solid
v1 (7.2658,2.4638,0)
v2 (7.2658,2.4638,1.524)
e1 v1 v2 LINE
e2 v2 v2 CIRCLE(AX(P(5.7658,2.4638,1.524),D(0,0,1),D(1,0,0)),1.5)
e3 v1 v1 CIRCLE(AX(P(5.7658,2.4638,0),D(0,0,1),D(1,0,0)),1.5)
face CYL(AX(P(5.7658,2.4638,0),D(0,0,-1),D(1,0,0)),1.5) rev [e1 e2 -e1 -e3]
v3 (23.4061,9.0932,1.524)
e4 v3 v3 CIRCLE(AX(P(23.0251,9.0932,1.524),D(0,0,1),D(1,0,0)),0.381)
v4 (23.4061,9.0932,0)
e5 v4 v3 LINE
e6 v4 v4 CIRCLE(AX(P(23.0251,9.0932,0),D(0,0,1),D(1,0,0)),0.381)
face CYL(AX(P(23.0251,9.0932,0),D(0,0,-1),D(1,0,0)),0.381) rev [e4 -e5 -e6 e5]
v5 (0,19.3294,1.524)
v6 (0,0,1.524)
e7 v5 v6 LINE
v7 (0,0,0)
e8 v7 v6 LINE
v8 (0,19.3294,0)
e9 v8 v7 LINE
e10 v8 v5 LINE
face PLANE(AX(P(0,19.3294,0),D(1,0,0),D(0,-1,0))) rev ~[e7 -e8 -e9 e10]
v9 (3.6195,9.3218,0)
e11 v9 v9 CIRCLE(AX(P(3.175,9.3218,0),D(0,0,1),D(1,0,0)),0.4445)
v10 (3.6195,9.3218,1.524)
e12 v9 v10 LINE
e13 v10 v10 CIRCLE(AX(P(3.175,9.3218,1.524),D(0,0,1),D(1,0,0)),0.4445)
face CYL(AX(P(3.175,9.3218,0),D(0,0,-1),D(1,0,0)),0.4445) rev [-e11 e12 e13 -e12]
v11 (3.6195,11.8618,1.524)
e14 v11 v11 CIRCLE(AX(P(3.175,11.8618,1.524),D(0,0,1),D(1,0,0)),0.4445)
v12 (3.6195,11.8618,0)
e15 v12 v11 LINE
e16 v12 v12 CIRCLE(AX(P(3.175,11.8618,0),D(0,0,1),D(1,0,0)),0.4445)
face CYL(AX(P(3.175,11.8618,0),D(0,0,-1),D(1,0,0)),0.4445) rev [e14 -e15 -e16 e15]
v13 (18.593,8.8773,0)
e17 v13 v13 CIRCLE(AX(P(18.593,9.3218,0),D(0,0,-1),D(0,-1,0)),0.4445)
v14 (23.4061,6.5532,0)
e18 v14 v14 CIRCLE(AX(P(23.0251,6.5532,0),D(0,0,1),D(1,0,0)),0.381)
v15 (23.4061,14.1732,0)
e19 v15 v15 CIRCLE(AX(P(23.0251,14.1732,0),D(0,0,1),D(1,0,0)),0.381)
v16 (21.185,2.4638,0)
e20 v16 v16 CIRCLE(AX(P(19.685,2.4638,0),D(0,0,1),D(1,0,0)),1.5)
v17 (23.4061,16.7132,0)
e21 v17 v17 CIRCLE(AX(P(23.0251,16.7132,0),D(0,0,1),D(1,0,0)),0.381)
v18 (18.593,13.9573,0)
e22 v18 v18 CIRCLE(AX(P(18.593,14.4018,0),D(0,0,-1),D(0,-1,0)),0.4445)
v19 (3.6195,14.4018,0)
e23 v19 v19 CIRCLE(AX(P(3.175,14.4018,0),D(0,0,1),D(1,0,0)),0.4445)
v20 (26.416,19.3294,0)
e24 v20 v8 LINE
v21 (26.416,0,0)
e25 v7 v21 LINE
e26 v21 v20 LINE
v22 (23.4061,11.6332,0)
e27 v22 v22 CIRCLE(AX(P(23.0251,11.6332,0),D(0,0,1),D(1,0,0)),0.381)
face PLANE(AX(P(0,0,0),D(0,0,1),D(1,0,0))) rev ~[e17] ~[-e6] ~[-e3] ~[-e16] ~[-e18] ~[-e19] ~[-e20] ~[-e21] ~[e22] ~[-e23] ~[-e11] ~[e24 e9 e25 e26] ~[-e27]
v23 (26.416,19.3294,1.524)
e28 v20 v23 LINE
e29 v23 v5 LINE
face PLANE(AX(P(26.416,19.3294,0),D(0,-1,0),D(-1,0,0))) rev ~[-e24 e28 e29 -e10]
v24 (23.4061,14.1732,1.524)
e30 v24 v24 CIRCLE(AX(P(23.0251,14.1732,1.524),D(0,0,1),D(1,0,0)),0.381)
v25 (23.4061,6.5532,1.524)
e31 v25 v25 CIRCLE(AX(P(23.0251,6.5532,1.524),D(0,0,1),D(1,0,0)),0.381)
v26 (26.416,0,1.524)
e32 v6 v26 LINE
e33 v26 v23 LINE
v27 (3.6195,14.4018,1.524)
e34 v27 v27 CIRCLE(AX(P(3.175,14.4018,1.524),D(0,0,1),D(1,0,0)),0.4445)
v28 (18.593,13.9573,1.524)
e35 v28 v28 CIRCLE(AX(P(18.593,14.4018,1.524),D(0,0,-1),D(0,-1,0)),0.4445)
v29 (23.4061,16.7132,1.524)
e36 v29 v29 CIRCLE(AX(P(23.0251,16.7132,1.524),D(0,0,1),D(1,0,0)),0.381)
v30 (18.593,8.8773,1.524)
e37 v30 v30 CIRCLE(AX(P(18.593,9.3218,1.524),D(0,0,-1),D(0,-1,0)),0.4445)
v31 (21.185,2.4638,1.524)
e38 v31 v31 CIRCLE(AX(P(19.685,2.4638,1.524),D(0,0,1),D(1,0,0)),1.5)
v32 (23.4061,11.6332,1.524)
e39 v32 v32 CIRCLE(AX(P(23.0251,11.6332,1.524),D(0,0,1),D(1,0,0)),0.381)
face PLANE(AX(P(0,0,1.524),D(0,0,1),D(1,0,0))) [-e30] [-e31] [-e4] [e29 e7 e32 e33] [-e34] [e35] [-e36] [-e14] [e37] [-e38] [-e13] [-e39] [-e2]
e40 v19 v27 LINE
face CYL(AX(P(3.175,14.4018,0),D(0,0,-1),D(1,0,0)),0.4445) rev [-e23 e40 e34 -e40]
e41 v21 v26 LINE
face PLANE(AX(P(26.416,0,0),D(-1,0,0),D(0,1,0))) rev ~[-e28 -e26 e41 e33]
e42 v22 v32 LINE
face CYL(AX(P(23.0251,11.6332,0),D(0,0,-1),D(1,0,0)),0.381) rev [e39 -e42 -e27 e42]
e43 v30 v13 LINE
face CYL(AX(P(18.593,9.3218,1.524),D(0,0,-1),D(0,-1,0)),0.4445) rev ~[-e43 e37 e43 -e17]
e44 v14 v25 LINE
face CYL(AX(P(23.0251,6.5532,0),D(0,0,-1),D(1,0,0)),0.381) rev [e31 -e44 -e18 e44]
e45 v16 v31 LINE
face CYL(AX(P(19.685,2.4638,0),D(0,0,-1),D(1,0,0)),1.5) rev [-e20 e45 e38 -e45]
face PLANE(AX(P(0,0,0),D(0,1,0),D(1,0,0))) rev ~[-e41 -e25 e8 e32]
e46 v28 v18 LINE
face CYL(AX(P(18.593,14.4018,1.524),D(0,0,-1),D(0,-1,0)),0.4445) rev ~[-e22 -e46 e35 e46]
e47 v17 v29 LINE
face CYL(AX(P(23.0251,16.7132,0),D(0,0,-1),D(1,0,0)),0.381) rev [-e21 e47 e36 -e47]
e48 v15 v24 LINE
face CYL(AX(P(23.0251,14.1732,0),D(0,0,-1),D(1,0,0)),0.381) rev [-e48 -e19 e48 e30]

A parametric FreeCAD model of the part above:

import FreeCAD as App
import Part
import Sketcher
Q = App.Units.Quantity


def add_polygon(sketch, points):
    """Adds a closed chain of lines whose ends are joined by coincident constraints."""
    first, n = sketch.GeometryCount, len(points)
    for a, b in zip(points, points[1:] + points[:1]):
        sketch.addGeometry(Part.LineSegment(App.Vector(*a, 0), App.Vector(*b, 0)), False)
    for i in range(n):
        sketch.addConstraint(Sketcher.Constraint("Coincident", first + i, 2, first + (i + 1) % n, 1))

doc = App.newDocument("Part")
params = doc.addObject("Spreadsheet::Sheet", "Params")
for row, (alias, value) in enumerate([
    ("sketch1_diameter", "0.03 in"),
    ("sketch1_diameter2", "0.035 in"),
    ("sketch1_width", "1.04 in"),
    ("sketch1_height", "0.761 in"),
    ("pad1_length", "0.06 in"),
    ("sketch2_diameter", "0.035 in"),
    ("hole_diameter", "0.035 in"),
], start=1):
    params.set(f"A{row}", alias)
    params.set(f"B{row}", "=" + value)
    params.setAlias(f"B{row}", alias)

body = doc.addObject("PartDesign::Body", "Body")

# Sketch on XY plane
sketch1 = body.newObject("Sketcher::SketchObject", "Sketch")
sketch1.AttachmentSupport = (doc.getObject("XY_Plane"), [""])
sketch1.MapMode = "FlatFace"
add_polygon(sketch1, [(0, 19.3294), (0, 0), (26.416, 0), (26.416, 19.3294)])  # lines 0-3
sketch1.addGeometry(Part.Circle(App.Vector(5.7658, 2.4638, 0), App.Vector(0, 0, 1), 1.5), False)  # 4
sketch1.addGeometry(Part.Circle(App.Vector(3.175, 9.3218, 0), App.Vector(0, 0, 1), 0.4445), False)  # 5
sketch1.addGeometry(Part.Circle(App.Vector(19.685, 2.4638, 0), App.Vector(0, 0, 1), 1.5), False)  # 6
sketch1.addGeometry(Part.Circle(App.Vector(3.175, 11.8618, 0), App.Vector(0, 0, 1), 0.4445), False)  # 7
sketch1.addGeometry(Part.Circle(App.Vector(3.175, 14.4018, 0), App.Vector(0, 0, 1), 0.4445), False)  # 8
sketch1.addGeometry(Part.Circle(App.Vector(23.0251, 9.0932, 0), App.Vector(0, 0, 1), 0.381), False)  # 9
sketch1.addGeometry(Part.Circle(App.Vector(23.0251, 11.6332, 0), App.Vector(0, 0, 1), 0.381), False)  # 10
sketch1.addGeometry(Part.Circle(App.Vector(23.0251, 14.1732, 0), App.Vector(0, 0, 1), 0.381), False)  # 11
sketch1.addGeometry(Part.Circle(App.Vector(23.0251, 16.7132, 0), App.Vector(0, 0, 1), 0.381), False)  # 12
sketch1.addGeometry(Part.Circle(App.Vector(23.0251, 6.5532, 0), App.Vector(0, 0, 1), 0.381), False)  # 13
sketch1.addConstraint([
    Sketcher.Constraint("Vertical", 0),
    Sketcher.Constraint("Horizontal", 1),
    Sketcher.Constraint("Vertical", 2),
    Sketcher.Constraint("Horizontal", 3),
    Sketcher.Constraint("Coincident", 0, 2, -1, 1),
    Sketcher.Constraint("Equal", 4, 6),
    Sketcher.Constraint("Equal", 5, 7),
    Sketcher.Constraint("Equal", 7, 8),
    Sketcher.Constraint("Equal", 9, 10),
    Sketcher.Constraint("Equal", 10, 11),
    Sketcher.Constraint("Equal", 11, 12),
    Sketcher.Constraint("Equal", 12, 13),
    Sketcher.Constraint("Horizontal", 4, 3, 6, 3),
    Sketcher.Constraint("Vertical", 5, 3, 7, 3),
    Sketcher.Constraint("Vertical", 7, 3, 8, 3),
    Sketcher.Constraint("Vertical", 9, 3, 10, 3),
    Sketcher.Constraint("Vertical", 10, 3, 11, 3),
    Sketcher.Constraint("Vertical", 11, 3, 12, 3),
    Sketcher.Constraint("Vertical", 12, 3, 13, 3),
    Sketcher.Constraint("Diameter", 9, Q("0.03 in")),
    Sketcher.Constraint("Diameter", 5, Q("0.035 in")),
    Sketcher.Constraint("Diameter", 4, Q("0.1181 in")),
    Sketcher.Constraint("DistanceX", 1, 1, 1, 2, Q("1.04 in")),
    Sketcher.Constraint("DistanceY", 5, 3, 7, 3, Q("0.1 in")),
    Sketcher.Constraint("DistanceY", 7, 3, 8, 3, Q("0.1 in")),
    Sketcher.Constraint("DistanceY", 9, 3, 10, 3, Q("0.1 in")),
    Sketcher.Constraint("DistanceY", 10, 3, 11, 3, Q("0.1 in")),
    Sketcher.Constraint("DistanceY", 11, 3, 12, 3, Q("0.1 in")),
    Sketcher.Constraint("DistanceY", 13, 3, 9, 3, Q("0.1 in")),
    Sketcher.Constraint("DistanceY", 0, 2, 0, 1, Q("0.761 in")),
    Sketcher.Constraint("DistanceX", -1, 1, 4, 3, Q("0.227 in")),
    Sketcher.Constraint("DistanceY", -1, 1, 4, 3, Q("0.097 in")),
    Sketcher.Constraint("DistanceX", -1, 1, 5, 3, Q("0.125 in")),
    Sketcher.Constraint("DistanceX", 4, 3, 6, 3, Q("0.548 in")),
    Sketcher.Constraint("DistanceY", 8, 3, 3, 2, Q("0.194 in")),
    Sketcher.Constraint("DistanceY", -1, 1, 9, 3, Q("0.358 in")),
    Sketcher.Constraint("DistanceX", -1, 1, 9, 3, Q("0.9065 in")),
])
sketch1.setExpression("Constraints[23]", "Params.sketch1_diameter")
sketch1.setExpression("Constraints[24]", "Params.sketch1_diameter2")
sketch1.setExpression("Constraints[26]", "Params.sketch1_width")
sketch1.setExpression("Constraints[33]", "Params.sketch1_height")
pad1 = body.newObject("PartDesign::Pad", "Pad")
pad1.Profile = sketch1
pad1.setExpression("Length", "Params.pad1_length")

# Sketch on XY plane
sketch2 = body.newObject("Sketcher::SketchObject", "Sketch001")
sketch2.AttachmentSupport = (doc.getObject("XY_Plane"), [""])
sketch2.MapMode = "FlatFace"
sketch2.AttachmentOffset = App.Placement(App.Vector(0, 0, 0.06 * 25.4), App.Rotation())
sketch2.addGeometry([
    Part.Circle(App.Vector(18.593, 14.4018, 0), App.Vector(0, 0, 1), 0.4445),
    Part.Circle(App.Vector(18.593, 9.3218, 0), App.Vector(0, 0, 1), 0.4445),
], False)
sketch2.addConstraint([
    Sketcher.Constraint("Equal", 0, 1),
    Sketcher.Constraint("Vertical", 0, 3, 1, 3),
    Sketcher.Constraint("Diameter", 0, Q("0.035 in")),
    Sketcher.Constraint("DistanceY", 1, 3, 0, 3, Q("0.2 in")),
    Sketcher.Constraint("DistanceX", -1, 1, 0, 3, Q("0.732 in")),
    Sketcher.Constraint("DistanceY", -1, 1, 0, 3, Q("0.567 in")),
])
sketch2.setExpression("Constraints[2]", "Params.sketch2_diameter")
doc.recompute()
hole = body.newObject("PartDesign::Hole", "Hole")
hole.Profile = sketch2
hole.ThreadType = "None"
hole.setExpression("Diameter", "Params.hole_diameter")
hole.DepthType = "ThroughAll"

doc.recompute()
